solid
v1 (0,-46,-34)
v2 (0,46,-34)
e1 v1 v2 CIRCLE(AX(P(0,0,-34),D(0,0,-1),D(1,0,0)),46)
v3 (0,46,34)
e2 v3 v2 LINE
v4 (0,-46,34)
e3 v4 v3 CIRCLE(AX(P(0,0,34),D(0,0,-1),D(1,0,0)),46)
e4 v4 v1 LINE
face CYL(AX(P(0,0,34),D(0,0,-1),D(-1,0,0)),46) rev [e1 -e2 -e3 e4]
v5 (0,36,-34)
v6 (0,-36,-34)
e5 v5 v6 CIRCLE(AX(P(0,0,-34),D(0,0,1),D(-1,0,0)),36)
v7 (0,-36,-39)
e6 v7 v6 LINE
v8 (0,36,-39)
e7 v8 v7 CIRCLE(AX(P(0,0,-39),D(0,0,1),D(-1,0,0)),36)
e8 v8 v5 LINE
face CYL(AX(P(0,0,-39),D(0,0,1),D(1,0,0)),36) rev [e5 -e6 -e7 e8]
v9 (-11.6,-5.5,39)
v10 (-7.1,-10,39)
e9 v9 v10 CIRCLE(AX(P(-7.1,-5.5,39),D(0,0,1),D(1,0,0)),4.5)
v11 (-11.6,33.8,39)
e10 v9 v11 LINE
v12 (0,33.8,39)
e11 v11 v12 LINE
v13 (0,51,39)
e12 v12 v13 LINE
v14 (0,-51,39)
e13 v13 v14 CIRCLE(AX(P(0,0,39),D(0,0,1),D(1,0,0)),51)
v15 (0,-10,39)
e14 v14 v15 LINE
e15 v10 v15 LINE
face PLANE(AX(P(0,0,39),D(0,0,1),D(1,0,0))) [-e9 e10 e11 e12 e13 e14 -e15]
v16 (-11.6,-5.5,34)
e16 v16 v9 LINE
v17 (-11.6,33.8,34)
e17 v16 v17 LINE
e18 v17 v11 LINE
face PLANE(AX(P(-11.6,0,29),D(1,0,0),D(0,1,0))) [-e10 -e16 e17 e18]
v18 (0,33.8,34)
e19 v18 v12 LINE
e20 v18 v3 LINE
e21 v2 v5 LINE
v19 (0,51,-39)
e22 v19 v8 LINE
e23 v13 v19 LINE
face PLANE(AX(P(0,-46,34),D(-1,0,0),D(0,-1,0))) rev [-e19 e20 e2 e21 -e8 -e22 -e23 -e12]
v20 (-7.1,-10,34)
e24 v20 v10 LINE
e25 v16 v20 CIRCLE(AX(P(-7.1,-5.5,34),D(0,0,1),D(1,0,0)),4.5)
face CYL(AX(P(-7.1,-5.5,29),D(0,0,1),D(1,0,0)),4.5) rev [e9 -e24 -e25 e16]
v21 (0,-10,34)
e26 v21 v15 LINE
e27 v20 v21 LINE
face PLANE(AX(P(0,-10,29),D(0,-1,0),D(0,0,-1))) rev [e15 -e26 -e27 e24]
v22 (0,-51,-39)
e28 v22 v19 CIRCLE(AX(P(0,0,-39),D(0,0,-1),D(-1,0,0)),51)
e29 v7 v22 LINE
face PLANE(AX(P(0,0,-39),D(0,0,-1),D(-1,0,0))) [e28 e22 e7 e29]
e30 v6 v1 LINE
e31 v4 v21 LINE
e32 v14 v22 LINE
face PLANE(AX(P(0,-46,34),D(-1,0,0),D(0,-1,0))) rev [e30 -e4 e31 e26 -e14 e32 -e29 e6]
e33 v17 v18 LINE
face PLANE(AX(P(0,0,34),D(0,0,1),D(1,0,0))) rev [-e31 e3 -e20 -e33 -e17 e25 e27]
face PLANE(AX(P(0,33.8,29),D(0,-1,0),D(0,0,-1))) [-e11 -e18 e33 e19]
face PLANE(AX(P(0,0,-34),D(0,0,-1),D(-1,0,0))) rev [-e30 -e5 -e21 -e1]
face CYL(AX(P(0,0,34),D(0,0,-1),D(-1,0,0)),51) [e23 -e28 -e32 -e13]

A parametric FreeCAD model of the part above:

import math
import FreeCAD as App
import Part
import Sketcher

doc = App.newDocument("Part")
body = doc.addObject("PartDesign::Body", "Body")

sketch1 = doc.addObject("Sketcher::SketchObject", "Sketch")
body.addObject(sketch1)
sketch1.AttachmentSupport = (doc.XY_Plane, [""])
sketch1.MapMode = "FlatFace"
sketch1.addGeometry([
    Part.LineSegment(App.Vector(0, 46, 0), App.Vector(0, 51, 0)),
    Part.ArcOfCircle(Part.Circle(App.Vector(0, 0, 0), App.Vector(0, 0, 1), 51), math.radians(90), math.radians(270)),
    Part.LineSegment(App.Vector(0, -51, 0), App.Vector(0, -46, 0)),
    Part.ArcOfCircle(Part.Circle(App.Vector(0, 0, 0), App.Vector(0, 0, 1), 46), math.radians(90), math.radians(270)),
], False)
sketch1.addConstraint([
    Sketcher.Constraint("Coincident", 0, 2, 1, 1),
    Sketcher.Constraint("Coincident", 1, 2, 2, 1),
    Sketcher.Constraint("Coincident", 2, 2, 3, 2),
    Sketcher.Constraint("Coincident", 3, 1, 0, 1),
    Sketcher.Constraint("Vertical", 0),
    Sketcher.Constraint("Vertical", 2),
    Sketcher.Constraint("Coincident", 1, 3, -1, 1),
    Sketcher.Constraint("Coincident", 3, 3, -1, 1),
    Sketcher.Constraint("PointOnObject", 0, 2, -2),
    Sketcher.Constraint("PointOnObject", 1, 2, -2),
    Sketcher.Constraint("Radius", 1, 51.0),
    Sketcher.Constraint("Radius", 3, 46.0),
])
pad1 = doc.addObject("PartDesign::Pad", "Pad")
body.addObject(pad1)
pad1.Profile = sketch1
pad1.Length = 68
pad1.Midplane = True

sketch2 = doc.addObject("Sketcher::SketchObject", "Sketch001")
body.addObject(sketch2)
sketch2.AttachmentSupport = (doc.XY_Plane, [""])
sketch2.MapMode = "FlatFace"
sketch2.AttachmentOffset = App.Placement(App.Vector(0, 0, 34), App.Rotation())
sketch2.addGeometry([
    Part.LineSegment(App.Vector(0, -51, 0), App.Vector(0, 51, 0)),
    Part.ArcOfCircle(Part.Circle(App.Vector(0, 0, 0), App.Vector(0, 0, 1), 51), math.radians(90), math.radians(270)),
], False)
sketch2.addConstraint([
    Sketcher.Constraint("Coincident", 0, 1, 1, 2),
    Sketcher.Constraint("Coincident", 1, 1, 0, 2),
    Sketcher.Constraint("Vertical", 0),
    Sketcher.Constraint("Coincident", 1, 3, -1, 1),
    Sketcher.Constraint("PointOnObject", 0, 1, -2),
    Sketcher.Constraint("Radius", 1, 51.0),
])
pad2 = doc.addObject("PartDesign::Pad", "Pad001")
body.addObject(pad2)
pad2.Profile = sketch2
pad2.Length = 5

sketch3 = doc.addObject("Sketcher::SketchObject", "Sketch002")
body.addObject(sketch3)
sketch3.AttachmentSupport = (doc.XY_Plane, [""])
sketch3.MapMode = "FlatFace"
sketch3.AttachmentOffset = App.Placement(App.Vector(0, 0, -34), App.Rotation())
sketch3.addGeometry([
    Part.LineSegment(App.Vector(0, 51, 0), App.Vector(0, 36, 0)),
    Part.ArcOfCircle(Part.Circle(App.Vector(0, 0, 0), App.Vector(0, 0, 1), 36), math.radians(90), math.radians(270)),
    Part.LineSegment(App.Vector(0, -36, 0), App.Vector(0, -51, 0)),
    Part.ArcOfCircle(Part.Circle(App.Vector(0, 0, 0), App.Vector(0, 0, 1), 51), math.radians(90), math.radians(270)),
], False)
sketch3.addConstraint([
    Sketcher.Constraint("Coincident", 0, 2, 1, 1),
    Sketcher.Constraint("Coincident", 1, 2, 2, 1),
    Sketcher.Constraint("Coincident", 2, 2, 3, 2),
    Sketcher.Constraint("Coincident", 3, 1, 0, 1),
    Sketcher.Constraint("Vertical", 0),
    Sketcher.Constraint("Vertical", 2),
    Sketcher.Constraint("Coincident", 1, 3, -1, 1),
    Sketcher.Constraint("Coincident", 3, 3, -1, 1),
    Sketcher.Constraint("PointOnObject", 0, 2, -2),
    Sketcher.Constraint("PointOnObject", 1, 2, -2),
    Sketcher.Constraint("Radius", 1, 36.0),
    Sketcher.Constraint("Radius", 3, 51.0),
])
pad3 = doc.addObject("PartDesign::Pad", "Pad002")
body.addObject(pad3)
pad3.Profile = sketch3
pad3.Length = 5
pad3.Reversed = True

sketch4 = doc.addObject("Sketcher::SketchObject", "Sketch003")
body.addObject(sketch4)
sketch4.AttachmentSupport = (doc.XY_Plane, [""])
sketch4.MapMode = "FlatFace"
sketch4.AttachmentOffset = App.Placement(App.Vector(0, 0, 39), App.Rotation())
sketch4.addGeometry([
    Part.ArcOfCircle(Part.Circle(App.Vector(0, 0, 0), App.Vector(0, 0, 1), 2.1), math.radians(-68), math.radians(68)),
    Part.LineSegment(App.Vector(0.8, 2, 0), App.Vector(11.6, 2, 0)),
    Part.LineSegment(App.Vector(11.6, 2, 0), App.Vector(11.6, 33.8, 0)),
    Part.LineSegment(App.Vector(11.6, 33.8, 0), App.Vector(-11.6, 33.8, 0)),
    Part.LineSegment(App.Vector(-11.6, 33.8, 0), App.Vector(-11.6, -5.5, 0)),
    Part.ArcOfCircle(Part.Circle(App.Vector(-7.1, -5.5, 0), App.Vector(0, 0, 1), 4.5), math.radians(180), math.radians(270)),
    Part.LineSegment(App.Vector(-7.1, -10, 0), App.Vector(7.1, -10, 0)),
    Part.ArcOfCircle(Part.Circle(App.Vector(7.1, -5.5, 0), App.Vector(0, 0, 1), 4.5), math.radians(-90), math.radians(0)),
    Part.LineSegment(App.Vector(11.6, -5.5, 0), App.Vector(11.6, -2, 0)),
    Part.LineSegment(App.Vector(11.6, -2, 0), App.Vector(0.8, -2, 0)),
], False)
sketch4.addConstraint([
    Sketcher.Constraint("Coincident", 0, 2, 1, 1),
    Sketcher.Constraint("Coincident", 1, 2, 2, 1),
    Sketcher.Constraint("Coincident", 2, 2, 3, 1),
    Sketcher.Constraint("Coincident", 3, 2, 4, 1),
    Sketcher.Constraint("Tangent", 4, 2, 5, 1),
    Sketcher.Constraint("Tangent", 5, 2, 6, 1),
    Sketcher.Constraint("Tangent", 6, 2, 7, 1),
    Sketcher.Constraint("Tangent", 7, 2, 8, 1),
    Sketcher.Constraint("Coincident", 8, 2, 9, 1),
    Sketcher.Constraint("Coincident", 9, 2, 0, 1),
    Sketcher.Constraint("Horizontal", 1),
    Sketcher.Constraint("Vertical", 2),
    Sketcher.Constraint("Horizontal", 3),
    Sketcher.Constraint("Vertical", 4),
    Sketcher.Constraint("Horizontal", 6),
    Sketcher.Constraint("Vertical", 8),
    Sketcher.Constraint("Horizontal", 9),
    Sketcher.Constraint("Coincident", 0, 3, -1, 1),
    Sketcher.Constraint("Equal", 5, 7),
    Sketcher.Constraint("Symmetric", 1, 2, 8, 2, -1),
    Sketcher.Constraint("Radius", 5, 4.5),
    Sketcher.Constraint("Radius", 0, 2.15),
    Sketcher.Constraint("DistanceX", 3, 2, 3, 1, 23.2),
    Sketcher.Constraint("DistanceY", 2, 1, 2, 2, 31.8),
    Sketcher.Constraint("DistanceY", 4, 2, 4, 1, 39.3),
    Sketcher.Constraint("DistanceY", 8, 1, 8, 2, 3.5),
    Sketcher.Constraint("DistanceX", 5, 3, -1, 1, 7.1),
])
pocket1 = doc.addObject("PartDesign::Pocket", "Pocket")
body.addObject(pocket1)
pocket1.Profile = sketch4
pocket1.Length = 10

doc.recompute()
